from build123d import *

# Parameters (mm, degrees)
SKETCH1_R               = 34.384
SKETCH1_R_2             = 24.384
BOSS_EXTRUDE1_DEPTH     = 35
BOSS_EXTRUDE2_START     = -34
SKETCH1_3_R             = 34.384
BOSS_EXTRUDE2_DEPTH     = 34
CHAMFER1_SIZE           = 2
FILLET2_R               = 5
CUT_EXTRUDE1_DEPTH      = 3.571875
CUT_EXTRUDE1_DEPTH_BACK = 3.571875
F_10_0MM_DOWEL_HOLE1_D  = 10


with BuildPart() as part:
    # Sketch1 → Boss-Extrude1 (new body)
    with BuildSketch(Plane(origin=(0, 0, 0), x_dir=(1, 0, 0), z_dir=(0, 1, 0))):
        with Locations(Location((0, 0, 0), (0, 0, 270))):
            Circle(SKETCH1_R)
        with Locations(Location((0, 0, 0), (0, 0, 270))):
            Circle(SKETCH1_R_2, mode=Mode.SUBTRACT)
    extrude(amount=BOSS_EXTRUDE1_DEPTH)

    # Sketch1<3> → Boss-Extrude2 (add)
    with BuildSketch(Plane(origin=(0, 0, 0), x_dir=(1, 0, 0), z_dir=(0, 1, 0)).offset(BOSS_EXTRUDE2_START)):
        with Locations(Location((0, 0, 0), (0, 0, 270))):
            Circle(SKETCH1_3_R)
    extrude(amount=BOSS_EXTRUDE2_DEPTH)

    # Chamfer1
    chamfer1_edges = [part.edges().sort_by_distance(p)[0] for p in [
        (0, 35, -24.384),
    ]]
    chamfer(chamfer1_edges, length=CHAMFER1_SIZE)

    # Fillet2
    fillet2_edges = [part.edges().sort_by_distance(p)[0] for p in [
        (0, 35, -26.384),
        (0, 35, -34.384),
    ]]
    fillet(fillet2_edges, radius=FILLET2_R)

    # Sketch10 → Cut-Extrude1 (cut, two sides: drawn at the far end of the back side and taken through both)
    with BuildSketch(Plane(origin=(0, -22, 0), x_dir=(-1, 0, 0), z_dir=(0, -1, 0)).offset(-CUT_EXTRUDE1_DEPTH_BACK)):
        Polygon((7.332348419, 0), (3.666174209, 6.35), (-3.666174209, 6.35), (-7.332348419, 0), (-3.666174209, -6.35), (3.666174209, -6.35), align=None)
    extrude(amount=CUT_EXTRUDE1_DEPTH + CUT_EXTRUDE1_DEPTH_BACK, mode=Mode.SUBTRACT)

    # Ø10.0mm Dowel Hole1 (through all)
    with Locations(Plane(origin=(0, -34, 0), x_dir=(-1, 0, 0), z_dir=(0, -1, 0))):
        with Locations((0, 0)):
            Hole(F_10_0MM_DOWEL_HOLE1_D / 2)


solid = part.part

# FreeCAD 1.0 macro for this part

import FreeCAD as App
import Part
import Sketcher
Q = App.Units.Quantity


def edges_at(feature, points):
    """Names of the edges that pass closest to the given points."""
    edges = feature.Shape.Edges
    near = lambda p: min(range(len(edges)), key=lambda i: edges[i].distToShape(Part.Vertex(*p))[0])
    return sorted({f"Edge{near(p) + 1}" for p in points})


def add_polygon(sketch, points):
    """Adds a closed chain of lines whose ends are joined by coincident constraints."""
    first, n = sketch.GeometryCount, len(points)
    for a, b in zip(points, points[1:] + points[:1]):
        sketch.addGeometry(Part.LineSegment(App.Vector(*a, 0), App.Vector(*b, 0)), False)
    for i in range(n):
        sketch.addConstraint(Sketcher.Constraint("Coincident", first + i, 2, first + (i + 1) % n, 1))

doc = App.newDocument("Part")
body = doc.addObject("PartDesign::Body", "Body")

sketch1 = doc.addObject("Sketcher::SketchObject", "Sketch")
body.addObject(sketch1)
sketch1.AttachmentSupport = (doc.XZ_Plane, [""])
sketch1.MapMode = "FlatFace"
sketch1.addGeometry([
    Part.Circle(App.Vector(0, 0, 0), App.Vector(0, 0, 1), 34.384),
    Part.Circle(App.Vector(0, 0, 0), App.Vector(0, 0, 1), 24.384),
], False)
sketch1.addConstraint([
    Sketcher.Constraint("Coincident", 0, 3, -1, 1),
    Sketcher.Constraint("Coincident", 1, 3, -1, 1),
    Sketcher.Constraint("Diameter", 0, 68.768),
    Sketcher.Constraint("Diameter", 1, 48.768),
])
pad1 = doc.addObject("PartDesign::Pad", "Pad")
body.addObject(pad1)
pad1.Profile = sketch1
pad1.Length = 35
pad1.Reversed = True

sketch2 = doc.addObject("Sketcher::SketchObject", "Sketch001")
body.addObject(sketch2)
sketch2.AttachmentSupport = (doc.XZ_Plane, [""])
sketch2.MapMode = "FlatFace"
sketch2.AttachmentOffset = App.Placement(App.Vector(0, 0, 34), App.Rotation())
sketch2.addGeometry(Part.Circle(App.Vector(0, 0, 0), App.Vector(0, 0, 1), 34.384), False)
sketch2.addConstraint([
    Sketcher.Constraint("Coincident", 0, 3, -1, 1),
    Sketcher.Constraint("Diameter", 0, 68.768),
])
pad2 = doc.addObject("PartDesign::Pad", "Pad001")
body.addObject(pad2)
pad2.Profile = sketch2
pad2.Length = 34
pad2.Reversed = True
doc.recompute()

chamfer = doc.addObject("PartDesign::Chamfer", "Chamfer")
body.addObject(chamfer)
chamfer.Base = (pad2, edges_at(pad2, [(0, 35, -24.384)]))
chamfer.Size = 2
doc.recompute()

fillet = doc.addObject("PartDesign::Fillet", "Fillet")
body.addObject(fillet)
fillet.Base = (chamfer, edges_at(chamfer, [(0, 35, -26.384), (0, 35, -34.384)]))
fillet.Radius = 5

sketch3 = doc.addObject("Sketcher::SketchObject", "Sketch002")
body.addObject(sketch3)
sketch3.AttachmentSupport = (doc.XZ_Plane, [""])
sketch3.MapMode = "FlatFace"
sketch3.AttachmentOffset = App.Placement(App.Vector(0, 0, 22), App.Rotation())
add_polygon(sketch3, [(-7.332348, 0), (-3.666174, -6.35), (3.666174, -6.35), (7.332348, 0), (3.666174, 6.35), (-3.666174, 6.35)])
sketch3.addConstraint([
    Sketcher.Constraint("Horizontal", 1),
    Sketcher.Constraint("Horizontal", 4),
    Sketcher.Constraint("Symmetric", 0, 2, 3, 2, -1, 1),
    Sketcher.Constraint("Symmetric", 2, 2, 5, 2, -1, 1),
    Sketcher.Constraint("PointOnObject", 2, 2, -1),
    Sketcher.Constraint("Parallel", 2, 5),
    Sketcher.Constraint("Vertical", 1, 2, 3, 2),
    Sketcher.Constraint("Angle", 0, Q("-60 deg")),
    Sketcher.Constraint("DistanceY", 1, 2, 3, 2, 12.7),
    Sketcher.Constraint("DistanceX", 1, 1, 1, 2, 7.332348),
])
pocket1 = doc.addObject("PartDesign::Pocket", "Pocket")
body.addObject(pocket1)
pocket1.Profile = sketch3
pocket1.Type = "TwoLengths"
pocket1.Length = 3.571875
pocket1.Length2 = 3.571875
pocket1.Reversed = True

sketch4 = doc.addObject("Sketcher::SketchObject", "Sketch003")
body.addObject(sketch4)
sketch4.AttachmentSupport = (doc.XZ_Plane, [""])
sketch4.MapMode = "FlatFace"
sketch4.AttachmentOffset = App.Placement(App.Vector(0, 0, 34), App.Rotation())
sketch4.addGeometry(Part.Circle(App.Vector(0, 0, 0), App.Vector(0, 0, 1), 5), False)
sketch4.addConstraint([
    Sketcher.Constraint("Coincident", 0, 3, -1, 1),
    Sketcher.Constraint("Diameter", 0, 10.0),
])
doc.recompute()
hole = doc.addObject("PartDesign::Hole", "Hole")
body.addObject(hole)
hole.Profile = sketch4
hole.ThreadType = "None"
hole.Diameter = 10
hole.DepthType = "ThroughAll"

doc.recompute()
